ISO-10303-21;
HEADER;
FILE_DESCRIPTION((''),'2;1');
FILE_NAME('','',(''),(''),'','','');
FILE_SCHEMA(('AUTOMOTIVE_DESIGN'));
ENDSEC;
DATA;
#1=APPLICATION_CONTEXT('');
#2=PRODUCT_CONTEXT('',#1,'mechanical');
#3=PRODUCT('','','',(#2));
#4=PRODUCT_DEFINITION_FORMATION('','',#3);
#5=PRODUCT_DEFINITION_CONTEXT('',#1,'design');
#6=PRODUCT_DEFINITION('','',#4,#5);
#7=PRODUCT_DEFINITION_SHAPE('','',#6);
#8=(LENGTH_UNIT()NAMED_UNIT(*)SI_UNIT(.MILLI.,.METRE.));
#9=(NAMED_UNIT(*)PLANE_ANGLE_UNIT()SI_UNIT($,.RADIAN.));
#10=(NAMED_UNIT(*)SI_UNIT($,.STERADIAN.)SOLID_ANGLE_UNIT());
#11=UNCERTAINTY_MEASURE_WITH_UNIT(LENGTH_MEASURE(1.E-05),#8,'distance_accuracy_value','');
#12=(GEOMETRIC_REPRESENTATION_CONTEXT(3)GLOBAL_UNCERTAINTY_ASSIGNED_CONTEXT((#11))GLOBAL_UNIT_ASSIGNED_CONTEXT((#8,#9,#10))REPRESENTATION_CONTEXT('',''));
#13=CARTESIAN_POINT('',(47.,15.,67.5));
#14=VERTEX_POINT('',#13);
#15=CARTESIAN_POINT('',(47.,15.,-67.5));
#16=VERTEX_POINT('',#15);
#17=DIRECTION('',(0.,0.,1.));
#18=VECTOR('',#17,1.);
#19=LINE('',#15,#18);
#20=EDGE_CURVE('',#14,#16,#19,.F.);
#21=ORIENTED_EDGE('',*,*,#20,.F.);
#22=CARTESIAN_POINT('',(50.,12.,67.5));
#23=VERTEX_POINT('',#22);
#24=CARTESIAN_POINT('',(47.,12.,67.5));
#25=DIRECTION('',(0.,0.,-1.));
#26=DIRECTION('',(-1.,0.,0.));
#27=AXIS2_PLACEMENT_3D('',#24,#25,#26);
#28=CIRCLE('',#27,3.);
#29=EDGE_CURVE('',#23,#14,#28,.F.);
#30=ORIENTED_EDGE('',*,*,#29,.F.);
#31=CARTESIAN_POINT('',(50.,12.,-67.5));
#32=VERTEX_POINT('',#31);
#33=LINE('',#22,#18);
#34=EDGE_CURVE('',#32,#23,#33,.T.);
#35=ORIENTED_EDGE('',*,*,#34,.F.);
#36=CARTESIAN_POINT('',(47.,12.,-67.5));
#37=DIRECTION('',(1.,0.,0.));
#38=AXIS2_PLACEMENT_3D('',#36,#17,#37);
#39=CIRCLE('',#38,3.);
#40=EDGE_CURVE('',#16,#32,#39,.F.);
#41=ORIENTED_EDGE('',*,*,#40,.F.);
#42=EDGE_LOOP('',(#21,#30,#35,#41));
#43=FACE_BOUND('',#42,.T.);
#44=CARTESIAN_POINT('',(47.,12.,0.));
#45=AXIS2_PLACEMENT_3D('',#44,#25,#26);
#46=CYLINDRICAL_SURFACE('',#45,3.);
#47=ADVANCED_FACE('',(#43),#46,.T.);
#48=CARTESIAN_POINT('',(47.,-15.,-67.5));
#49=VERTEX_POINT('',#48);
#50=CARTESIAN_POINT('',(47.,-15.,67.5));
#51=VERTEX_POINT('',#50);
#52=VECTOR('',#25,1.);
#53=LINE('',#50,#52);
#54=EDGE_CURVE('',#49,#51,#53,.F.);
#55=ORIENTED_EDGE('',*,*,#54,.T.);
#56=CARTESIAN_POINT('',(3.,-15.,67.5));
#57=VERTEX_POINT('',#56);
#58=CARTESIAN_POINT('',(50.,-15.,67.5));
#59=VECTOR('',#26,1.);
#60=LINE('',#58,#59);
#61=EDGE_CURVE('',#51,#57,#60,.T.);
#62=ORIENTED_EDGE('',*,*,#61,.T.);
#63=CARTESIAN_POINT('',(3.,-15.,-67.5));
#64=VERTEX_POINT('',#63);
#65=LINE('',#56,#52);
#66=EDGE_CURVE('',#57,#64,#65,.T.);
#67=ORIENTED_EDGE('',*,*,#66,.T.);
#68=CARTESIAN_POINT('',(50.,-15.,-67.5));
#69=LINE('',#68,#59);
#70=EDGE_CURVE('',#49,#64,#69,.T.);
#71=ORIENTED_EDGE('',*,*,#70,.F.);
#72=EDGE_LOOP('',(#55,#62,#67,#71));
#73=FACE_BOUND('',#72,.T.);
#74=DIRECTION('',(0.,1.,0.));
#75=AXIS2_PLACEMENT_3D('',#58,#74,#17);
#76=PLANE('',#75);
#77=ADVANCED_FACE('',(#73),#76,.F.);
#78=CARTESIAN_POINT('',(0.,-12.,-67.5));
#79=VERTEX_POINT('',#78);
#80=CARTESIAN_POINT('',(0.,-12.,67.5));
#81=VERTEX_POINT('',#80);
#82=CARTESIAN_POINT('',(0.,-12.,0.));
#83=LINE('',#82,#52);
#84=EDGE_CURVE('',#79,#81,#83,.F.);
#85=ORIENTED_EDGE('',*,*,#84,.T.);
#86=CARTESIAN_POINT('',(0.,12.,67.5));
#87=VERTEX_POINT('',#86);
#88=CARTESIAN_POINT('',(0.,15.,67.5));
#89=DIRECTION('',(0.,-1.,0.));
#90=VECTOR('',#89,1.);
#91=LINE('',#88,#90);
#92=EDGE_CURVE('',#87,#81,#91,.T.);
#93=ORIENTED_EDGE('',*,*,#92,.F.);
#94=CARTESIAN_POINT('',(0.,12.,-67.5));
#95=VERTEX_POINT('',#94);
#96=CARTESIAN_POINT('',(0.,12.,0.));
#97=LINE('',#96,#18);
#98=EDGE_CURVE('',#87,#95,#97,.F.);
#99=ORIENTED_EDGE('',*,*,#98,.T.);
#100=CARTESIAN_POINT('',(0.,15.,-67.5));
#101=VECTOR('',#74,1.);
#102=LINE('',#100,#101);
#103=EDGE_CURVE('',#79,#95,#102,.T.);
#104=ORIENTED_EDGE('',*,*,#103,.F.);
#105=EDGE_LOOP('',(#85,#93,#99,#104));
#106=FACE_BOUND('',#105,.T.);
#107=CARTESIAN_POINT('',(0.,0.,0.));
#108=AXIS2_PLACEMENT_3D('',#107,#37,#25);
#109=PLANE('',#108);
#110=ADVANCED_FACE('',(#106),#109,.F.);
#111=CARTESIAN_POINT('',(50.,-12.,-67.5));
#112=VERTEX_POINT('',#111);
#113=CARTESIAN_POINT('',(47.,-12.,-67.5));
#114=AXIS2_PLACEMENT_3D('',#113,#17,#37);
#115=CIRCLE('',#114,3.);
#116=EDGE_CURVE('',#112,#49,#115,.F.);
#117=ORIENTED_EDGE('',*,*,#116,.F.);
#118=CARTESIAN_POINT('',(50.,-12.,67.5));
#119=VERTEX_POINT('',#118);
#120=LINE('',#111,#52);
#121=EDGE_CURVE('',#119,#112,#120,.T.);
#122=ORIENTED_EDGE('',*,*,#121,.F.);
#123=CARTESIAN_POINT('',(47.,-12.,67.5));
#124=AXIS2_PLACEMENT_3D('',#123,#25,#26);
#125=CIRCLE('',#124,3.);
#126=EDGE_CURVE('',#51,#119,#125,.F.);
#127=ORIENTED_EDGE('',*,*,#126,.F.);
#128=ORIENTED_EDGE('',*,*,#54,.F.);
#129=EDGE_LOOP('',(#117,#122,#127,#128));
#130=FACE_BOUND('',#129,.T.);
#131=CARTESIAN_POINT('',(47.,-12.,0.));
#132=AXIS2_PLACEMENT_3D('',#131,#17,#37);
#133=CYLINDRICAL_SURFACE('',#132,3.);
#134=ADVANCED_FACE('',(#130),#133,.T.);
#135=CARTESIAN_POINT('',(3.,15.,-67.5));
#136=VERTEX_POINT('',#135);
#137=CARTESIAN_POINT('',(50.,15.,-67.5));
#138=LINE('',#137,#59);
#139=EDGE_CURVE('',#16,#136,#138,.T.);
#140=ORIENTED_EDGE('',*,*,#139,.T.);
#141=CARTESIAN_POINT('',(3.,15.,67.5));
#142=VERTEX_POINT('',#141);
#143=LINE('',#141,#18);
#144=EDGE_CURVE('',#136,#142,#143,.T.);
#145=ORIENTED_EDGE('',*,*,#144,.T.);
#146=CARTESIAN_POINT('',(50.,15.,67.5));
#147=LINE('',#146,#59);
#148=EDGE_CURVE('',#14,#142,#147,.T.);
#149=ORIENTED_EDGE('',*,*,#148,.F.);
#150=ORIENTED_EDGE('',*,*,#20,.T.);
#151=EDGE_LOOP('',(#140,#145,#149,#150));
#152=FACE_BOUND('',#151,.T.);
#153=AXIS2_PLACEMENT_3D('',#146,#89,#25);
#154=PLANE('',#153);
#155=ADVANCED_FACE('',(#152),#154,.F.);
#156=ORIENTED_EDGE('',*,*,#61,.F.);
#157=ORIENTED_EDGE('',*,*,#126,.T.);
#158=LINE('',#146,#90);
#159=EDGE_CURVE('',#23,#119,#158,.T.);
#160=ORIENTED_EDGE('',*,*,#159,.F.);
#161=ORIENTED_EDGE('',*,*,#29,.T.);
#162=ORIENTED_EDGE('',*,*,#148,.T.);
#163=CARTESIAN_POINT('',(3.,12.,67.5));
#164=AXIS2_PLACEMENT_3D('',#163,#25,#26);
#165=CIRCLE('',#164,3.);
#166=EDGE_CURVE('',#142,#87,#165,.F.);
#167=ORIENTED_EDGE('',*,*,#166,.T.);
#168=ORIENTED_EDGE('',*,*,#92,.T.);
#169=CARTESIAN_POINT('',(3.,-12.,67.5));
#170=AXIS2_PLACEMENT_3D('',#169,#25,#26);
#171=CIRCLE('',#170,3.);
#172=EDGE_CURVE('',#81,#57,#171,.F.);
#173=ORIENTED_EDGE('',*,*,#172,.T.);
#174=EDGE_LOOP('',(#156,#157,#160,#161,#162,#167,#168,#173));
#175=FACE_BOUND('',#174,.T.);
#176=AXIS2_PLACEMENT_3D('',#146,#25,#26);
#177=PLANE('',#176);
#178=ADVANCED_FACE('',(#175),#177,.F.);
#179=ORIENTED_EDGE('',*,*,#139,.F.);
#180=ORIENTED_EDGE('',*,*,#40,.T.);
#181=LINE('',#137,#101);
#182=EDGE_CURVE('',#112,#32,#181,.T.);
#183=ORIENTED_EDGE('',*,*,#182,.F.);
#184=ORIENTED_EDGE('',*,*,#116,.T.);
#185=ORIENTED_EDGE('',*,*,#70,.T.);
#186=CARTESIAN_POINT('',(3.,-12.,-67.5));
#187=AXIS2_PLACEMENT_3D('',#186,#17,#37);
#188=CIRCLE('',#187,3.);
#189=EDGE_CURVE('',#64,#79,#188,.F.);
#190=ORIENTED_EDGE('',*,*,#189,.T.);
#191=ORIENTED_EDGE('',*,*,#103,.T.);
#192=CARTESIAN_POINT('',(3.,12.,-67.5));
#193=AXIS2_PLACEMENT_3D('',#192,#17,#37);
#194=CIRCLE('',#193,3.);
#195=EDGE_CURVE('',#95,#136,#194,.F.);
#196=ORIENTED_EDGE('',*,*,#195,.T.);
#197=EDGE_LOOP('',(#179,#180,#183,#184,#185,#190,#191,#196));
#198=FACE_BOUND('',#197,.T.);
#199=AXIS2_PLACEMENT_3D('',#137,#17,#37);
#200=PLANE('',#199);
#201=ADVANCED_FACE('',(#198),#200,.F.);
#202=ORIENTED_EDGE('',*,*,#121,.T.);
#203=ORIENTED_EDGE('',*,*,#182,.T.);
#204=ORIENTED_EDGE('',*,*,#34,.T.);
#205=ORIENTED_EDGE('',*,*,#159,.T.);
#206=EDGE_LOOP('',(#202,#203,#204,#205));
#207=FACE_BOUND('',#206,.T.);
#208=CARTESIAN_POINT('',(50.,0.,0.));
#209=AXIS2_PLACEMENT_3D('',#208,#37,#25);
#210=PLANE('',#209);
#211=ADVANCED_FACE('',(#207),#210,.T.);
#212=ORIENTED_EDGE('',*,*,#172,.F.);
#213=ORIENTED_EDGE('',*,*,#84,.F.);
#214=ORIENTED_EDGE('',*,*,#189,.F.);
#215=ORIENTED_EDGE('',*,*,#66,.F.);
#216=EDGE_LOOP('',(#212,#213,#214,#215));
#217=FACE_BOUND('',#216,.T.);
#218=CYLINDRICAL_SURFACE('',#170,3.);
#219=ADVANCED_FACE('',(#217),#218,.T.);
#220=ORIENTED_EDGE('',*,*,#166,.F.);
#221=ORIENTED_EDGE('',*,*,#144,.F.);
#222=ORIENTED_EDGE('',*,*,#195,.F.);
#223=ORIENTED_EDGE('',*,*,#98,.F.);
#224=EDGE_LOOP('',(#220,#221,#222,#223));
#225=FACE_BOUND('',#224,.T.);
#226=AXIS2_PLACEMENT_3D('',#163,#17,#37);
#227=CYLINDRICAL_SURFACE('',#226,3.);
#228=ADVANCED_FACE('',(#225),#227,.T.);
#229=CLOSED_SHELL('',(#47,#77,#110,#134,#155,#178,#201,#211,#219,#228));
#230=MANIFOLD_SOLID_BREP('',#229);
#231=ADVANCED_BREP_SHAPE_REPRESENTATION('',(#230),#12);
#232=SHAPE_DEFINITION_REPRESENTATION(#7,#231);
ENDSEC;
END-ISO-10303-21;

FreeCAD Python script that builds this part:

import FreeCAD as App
import Part
import Sketcher

V = App.Vector


def edges_at(feature, points):
    """Names of the edges that pass closest to the given points."""
    edges = feature.Shape.Edges
    near = lambda p: min(range(len(edges)), key=lambda i: edges[i].distToShape(Part.Vertex(*p))[0])
    return sorted({f"Edge{near(p) + 1}" for p in points})


def add_polygon(sketch, points):
    """Adds a closed chain of lines whose ends are joined by coincident constraints."""
    first, n = sketch.GeometryCount, len(points)
    for a, b in zip(points, points[1:] + points[:1]):
        sketch.addGeometry(Part.LineSegment(App.Vector(*a, 0), App.Vector(*b, 0)), False)
    for i in range(n):
        sketch.addConstraint(Sketcher.Constraint("Coincident", first + i, 2, first + (i + 1) % n, 1))

doc = App.newDocument("Part")
body = doc.addObject("PartDesign::Body", "Body")

# Sketch on YZ plane
sketch1 = body.newObject("Sketcher::SketchObject", "Sketch")
sketch1.AttachmentSupport = (doc.getObject("YZ_Plane"), [""])
sketch1.MapMode = "FlatFace"
add_polygon(sketch1, [(15, 68), (-15, 68), (-15, -68), (15, -68)])  # lines 0-3
sketch1.addConstraint(Sketcher.Constraint("Horizontal", 0))
sketch1.addConstraint(Sketcher.Constraint("Vertical", 1))
sketch1.addConstraint(Sketcher.Constraint("Horizontal", 2))
sketch1.addConstraint(Sketcher.Constraint("Vertical", 3))
sketch1.addConstraint(Sketcher.Constraint("Symmetric", 0, 2, 2, 2, -1, 1))
sketch1.addConstraint(Sketcher.Constraint("DistanceX", 0, 2, 0, 1, 30.0))
sketch1.addConstraint(Sketcher.Constraint("DistanceY", 1, 2, 1, 1, 135.0))
pad1 = body.newObject("PartDesign::Pad", "Pad")
pad1.Profile = sketch1
pad1.Length = 50
doc.recompute()

fillet = body.newObject("PartDesign::Fillet", "Fillet")
fillet.Base = (pad1, edges_at(pad1, [
    (50, -15, 0),
    (0, -15, 0),
    (0, 15, 0),
    (50, 15, 0),
]))
fillet.Radius = 3

doc.recompute()
